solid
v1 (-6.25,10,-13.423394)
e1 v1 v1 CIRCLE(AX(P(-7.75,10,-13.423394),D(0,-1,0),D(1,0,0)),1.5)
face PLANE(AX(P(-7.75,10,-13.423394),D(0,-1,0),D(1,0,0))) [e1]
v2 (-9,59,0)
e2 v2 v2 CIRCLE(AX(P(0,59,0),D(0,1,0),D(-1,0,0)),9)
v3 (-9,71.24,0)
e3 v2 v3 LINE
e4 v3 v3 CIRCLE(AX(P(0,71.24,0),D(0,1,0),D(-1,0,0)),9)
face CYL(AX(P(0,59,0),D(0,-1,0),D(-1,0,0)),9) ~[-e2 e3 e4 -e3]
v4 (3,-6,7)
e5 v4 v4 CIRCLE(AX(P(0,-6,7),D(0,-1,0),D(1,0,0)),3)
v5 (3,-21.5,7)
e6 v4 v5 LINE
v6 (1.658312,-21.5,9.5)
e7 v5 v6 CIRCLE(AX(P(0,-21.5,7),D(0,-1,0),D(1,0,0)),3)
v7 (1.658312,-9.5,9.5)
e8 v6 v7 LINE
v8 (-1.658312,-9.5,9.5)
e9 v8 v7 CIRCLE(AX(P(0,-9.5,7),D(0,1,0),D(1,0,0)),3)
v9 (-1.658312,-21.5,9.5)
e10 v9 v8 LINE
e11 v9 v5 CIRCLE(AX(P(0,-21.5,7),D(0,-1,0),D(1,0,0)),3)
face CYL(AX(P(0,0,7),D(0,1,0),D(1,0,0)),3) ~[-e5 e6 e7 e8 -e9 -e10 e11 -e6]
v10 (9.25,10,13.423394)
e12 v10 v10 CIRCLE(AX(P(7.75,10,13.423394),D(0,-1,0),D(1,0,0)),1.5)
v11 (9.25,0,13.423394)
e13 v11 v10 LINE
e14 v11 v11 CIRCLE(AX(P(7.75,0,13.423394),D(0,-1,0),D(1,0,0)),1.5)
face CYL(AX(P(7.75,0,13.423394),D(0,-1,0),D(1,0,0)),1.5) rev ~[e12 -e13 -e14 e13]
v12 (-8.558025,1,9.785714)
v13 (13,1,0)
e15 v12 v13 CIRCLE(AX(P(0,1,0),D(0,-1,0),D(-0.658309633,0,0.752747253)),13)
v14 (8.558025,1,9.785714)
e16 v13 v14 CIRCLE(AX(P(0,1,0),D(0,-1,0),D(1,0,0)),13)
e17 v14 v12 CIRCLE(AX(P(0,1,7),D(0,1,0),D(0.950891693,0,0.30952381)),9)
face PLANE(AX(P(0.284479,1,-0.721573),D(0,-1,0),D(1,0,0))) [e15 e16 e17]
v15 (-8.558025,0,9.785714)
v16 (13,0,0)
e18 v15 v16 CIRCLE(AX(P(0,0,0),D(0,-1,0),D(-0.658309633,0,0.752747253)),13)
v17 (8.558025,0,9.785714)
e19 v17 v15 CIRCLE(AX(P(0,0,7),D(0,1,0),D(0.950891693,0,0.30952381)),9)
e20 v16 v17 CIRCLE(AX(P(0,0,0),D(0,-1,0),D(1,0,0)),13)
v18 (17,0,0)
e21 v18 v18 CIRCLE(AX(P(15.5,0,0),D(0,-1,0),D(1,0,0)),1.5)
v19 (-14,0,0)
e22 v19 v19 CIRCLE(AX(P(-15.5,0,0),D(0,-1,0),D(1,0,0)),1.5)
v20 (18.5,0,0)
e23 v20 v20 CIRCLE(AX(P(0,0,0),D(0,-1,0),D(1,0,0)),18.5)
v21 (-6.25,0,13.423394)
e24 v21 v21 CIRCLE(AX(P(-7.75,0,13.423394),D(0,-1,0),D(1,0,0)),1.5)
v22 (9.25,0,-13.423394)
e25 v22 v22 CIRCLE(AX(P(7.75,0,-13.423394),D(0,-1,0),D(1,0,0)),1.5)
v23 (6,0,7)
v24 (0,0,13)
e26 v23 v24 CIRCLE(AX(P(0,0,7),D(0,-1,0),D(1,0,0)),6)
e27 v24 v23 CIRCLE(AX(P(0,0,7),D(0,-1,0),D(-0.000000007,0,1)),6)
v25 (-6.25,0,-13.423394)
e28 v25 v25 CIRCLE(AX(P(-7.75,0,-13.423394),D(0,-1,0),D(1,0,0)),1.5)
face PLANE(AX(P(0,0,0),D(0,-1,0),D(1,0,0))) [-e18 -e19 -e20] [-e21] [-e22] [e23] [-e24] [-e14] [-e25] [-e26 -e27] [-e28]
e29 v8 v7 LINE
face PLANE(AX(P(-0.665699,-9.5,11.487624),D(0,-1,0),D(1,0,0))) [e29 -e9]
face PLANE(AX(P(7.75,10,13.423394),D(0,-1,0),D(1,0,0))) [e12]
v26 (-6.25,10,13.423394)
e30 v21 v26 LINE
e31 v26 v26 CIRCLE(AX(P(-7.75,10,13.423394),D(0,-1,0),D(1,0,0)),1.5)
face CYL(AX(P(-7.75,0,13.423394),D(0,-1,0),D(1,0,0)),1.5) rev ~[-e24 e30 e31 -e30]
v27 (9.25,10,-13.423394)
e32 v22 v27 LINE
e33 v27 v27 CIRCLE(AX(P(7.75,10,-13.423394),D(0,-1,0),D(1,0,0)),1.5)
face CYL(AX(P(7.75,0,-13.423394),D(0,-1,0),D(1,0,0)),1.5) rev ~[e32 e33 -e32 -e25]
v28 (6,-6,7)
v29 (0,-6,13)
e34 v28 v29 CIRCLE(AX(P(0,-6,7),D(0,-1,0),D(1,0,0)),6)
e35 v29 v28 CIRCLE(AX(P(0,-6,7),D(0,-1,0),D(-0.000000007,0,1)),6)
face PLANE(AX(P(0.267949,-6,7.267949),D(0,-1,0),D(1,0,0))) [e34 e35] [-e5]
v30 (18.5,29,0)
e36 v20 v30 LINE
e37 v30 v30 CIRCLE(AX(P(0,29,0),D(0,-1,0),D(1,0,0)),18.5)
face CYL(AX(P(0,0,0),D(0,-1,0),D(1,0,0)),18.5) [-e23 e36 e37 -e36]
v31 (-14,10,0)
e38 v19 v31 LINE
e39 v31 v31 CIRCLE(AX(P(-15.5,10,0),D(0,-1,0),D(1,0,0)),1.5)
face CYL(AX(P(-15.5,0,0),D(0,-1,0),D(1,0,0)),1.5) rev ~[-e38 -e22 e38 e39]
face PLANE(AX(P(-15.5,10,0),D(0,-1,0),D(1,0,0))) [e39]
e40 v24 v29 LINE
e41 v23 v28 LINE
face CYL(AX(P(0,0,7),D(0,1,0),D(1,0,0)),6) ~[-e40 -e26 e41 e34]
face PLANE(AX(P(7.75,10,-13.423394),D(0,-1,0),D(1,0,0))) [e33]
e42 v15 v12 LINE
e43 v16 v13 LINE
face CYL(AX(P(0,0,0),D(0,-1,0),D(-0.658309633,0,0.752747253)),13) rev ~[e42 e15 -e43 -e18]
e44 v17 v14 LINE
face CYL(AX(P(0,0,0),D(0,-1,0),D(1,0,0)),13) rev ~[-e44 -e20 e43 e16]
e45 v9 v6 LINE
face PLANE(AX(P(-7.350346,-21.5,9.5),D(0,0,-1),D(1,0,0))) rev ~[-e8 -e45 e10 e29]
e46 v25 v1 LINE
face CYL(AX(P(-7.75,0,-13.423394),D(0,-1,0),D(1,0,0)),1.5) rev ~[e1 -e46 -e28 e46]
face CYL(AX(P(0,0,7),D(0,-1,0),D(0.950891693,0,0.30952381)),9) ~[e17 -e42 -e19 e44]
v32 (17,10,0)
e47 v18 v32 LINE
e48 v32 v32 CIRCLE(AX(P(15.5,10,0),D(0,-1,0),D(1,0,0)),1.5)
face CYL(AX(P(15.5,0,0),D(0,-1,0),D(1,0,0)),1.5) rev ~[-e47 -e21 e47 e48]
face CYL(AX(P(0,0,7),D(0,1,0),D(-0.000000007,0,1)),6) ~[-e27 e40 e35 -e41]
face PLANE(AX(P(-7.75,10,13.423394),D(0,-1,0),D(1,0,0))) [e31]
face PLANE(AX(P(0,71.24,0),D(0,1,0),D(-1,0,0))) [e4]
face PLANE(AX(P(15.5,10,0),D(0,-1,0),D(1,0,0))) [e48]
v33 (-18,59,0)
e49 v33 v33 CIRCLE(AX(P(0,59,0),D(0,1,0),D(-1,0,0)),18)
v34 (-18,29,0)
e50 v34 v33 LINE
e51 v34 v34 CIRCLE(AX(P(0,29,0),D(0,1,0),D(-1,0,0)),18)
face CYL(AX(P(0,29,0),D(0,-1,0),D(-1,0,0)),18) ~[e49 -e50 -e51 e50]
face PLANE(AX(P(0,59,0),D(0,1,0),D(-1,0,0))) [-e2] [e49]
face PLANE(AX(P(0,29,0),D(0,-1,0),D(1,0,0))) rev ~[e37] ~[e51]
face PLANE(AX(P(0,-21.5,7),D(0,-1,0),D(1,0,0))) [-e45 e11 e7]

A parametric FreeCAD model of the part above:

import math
import FreeCAD as App
import Part
import Sketcher
Q = App.Units.Quantity


def add_polygon(sketch, points):
    """Adds a closed chain of lines whose ends are joined by coincident constraints."""
    first, n = sketch.GeometryCount, len(points)
    for a, b in zip(points, points[1:] + points[:1]):
        sketch.addGeometry(Part.LineSegment(App.Vector(*a, 0), App.Vector(*b, 0)), False)
    for i in range(n):
        sketch.addConstraint(Sketcher.Constraint("Coincident", first + i, 2, first + (i + 1) % n, 1))

doc = App.newDocument("Part")
body = doc.addObject("PartDesign::Body", "Body")

sketch1 = body.newObject("Sketcher::SketchObject", "Sketch")
sketch1.AttachmentSupport = (doc.getObject("XZ_Plane"), [""])
sketch1.MapMode = "FlatFace"
sketch1.addGeometry(Part.Circle(App.Vector(0, 0, 0), App.Vector(0, 0, 1), 18.5), False)
sketch1.addConstraint([
    Sketcher.Constraint("Coincident", 0, 3, -1, 1),
    Sketcher.Constraint("Diameter", 0, Q("37 mm")),
])
pad1 = body.newObject("PartDesign::Pad", "Pad")
pad1.Profile = sketch1
pad1.Length = 29
pad1.Reversed = True

sketch2 = body.newObject("Sketcher::SketchObject", "Sketch001")
sketch2.AttachmentSupport = (doc.getObject("XZ_Plane"), [""])
sketch2.MapMode = "FlatFace"
sketch2.AttachmentOffset = App.Placement(App.Vector(0, 0, -29), App.Rotation())
sketch2.addGeometry(Part.Circle(App.Vector(0, 0, 0), App.Vector(0, 0, 1), 18), False)
sketch2.addConstraint([
    Sketcher.Constraint("Coincident", 0, 3, -1, 1),
    Sketcher.Constraint("Diameter", 0, Q("36 mm")),
])
pad2 = body.newObject("PartDesign::Pad", "Pad001")
pad2.Profile = sketch2
pad2.Length = 30
pad2.Reversed = True

sketch3 = body.newObject("Sketcher::SketchObject", "Sketch002")
sketch3.AttachmentSupport = (doc.getObject("XZ_Plane"), [""])
sketch3.MapMode = "FlatFace"
sketch3.AttachmentOffset = App.Placement(App.Vector(0, 0, -59), App.Rotation())
sketch3.addGeometry(Part.Circle(App.Vector(0, 0, 0), App.Vector(0, 0, 1), 9), False)
sketch3.addConstraint([
    Sketcher.Constraint("Coincident", 0, 3, -1, 1),
    Sketcher.Constraint("Diameter", 0, Q("18 mm")),
])
pad3 = body.newObject("PartDesign::Pad", "Pad002")
pad3.Profile = sketch3
pad3.Length = 12.24
pad3.Reversed = True

sketch4 = body.newObject("Sketcher::SketchObject", "Sketch003")
sketch4.AttachmentSupport = (doc.getObject("XZ_Plane"), [""])
sketch4.MapMode = "FlatFace"
sketch4.addGeometry([
    Part.ArcOfCircle(Part.Circle(App.Vector(0, 7, 0), App.Vector(0, 0, 1), 6), math.radians(90), math.radians(360)),
    Part.ArcOfCircle(Part.Circle(App.Vector(0, 7, 0), App.Vector(0, 0, 1), 6), math.radians(0), math.radians(90)),
    Part.Circle(App.Vector(0, 7, 0), App.Vector(0, 0, 1), 3),
], False)
sketch4.addConstraint([
    Sketcher.Constraint("Tangent", 0, 1, 1, 2),
    Sketcher.Constraint("Coincident", 1, 1, 0, 2),
    Sketcher.Constraint("Coincident", 2, 3, 0, 3),
    Sketcher.Constraint("PointOnObject", 0, 3, -2),
    Sketcher.Constraint("PointOnObject", 0, 1, -2),
    Sketcher.Constraint("Horizontal", 2, 3, 1, 1),
    Sketcher.Constraint("Diameter", 2, Q("6 mm")),
    Sketcher.Constraint("Radius", 0, Q("6 mm")),
    Sketcher.Constraint("DistanceY", -1, 1, 0, 3, Q("7 mm")),
])
pad4 = body.newObject("PartDesign::Pad", "Pad003")
pad4.Profile = sketch4
pad4.Length = 6

sketch5 = body.newObject("Sketcher::SketchObject", "Sketch004")
sketch5.AttachmentSupport = (doc.getObject("XZ_Plane"), [""])
sketch5.MapMode = "FlatFace"
sketch5.addGeometry(Part.Circle(App.Vector(0, 7, 0), App.Vector(0, 0, 1), 3), False)
sketch5.addConstraint([
    Sketcher.Constraint("PointOnObject", 0, 3, -2),
    Sketcher.Constraint("Diameter", 0, Q("6 mm")),
    Sketcher.Constraint("DistanceY", -1, 1, 0, 3, Q("7 mm")),
])
pad5 = body.newObject("PartDesign::Pad", "Pad004")
pad5.Profile = sketch5
pad5.Length = 21.5

sketch6 = body.newObject("Sketcher::SketchObject", "Sketch005")
sketch6.AttachmentSupport = (doc.getObject("XZ_Plane"), [""])
sketch6.MapMode = "FlatFace"
sketch6.addGeometry([
    Part.Circle(App.Vector(-7.75, 13.423394, 0), App.Vector(0, 0, 1), 1.5),
    Part.Circle(App.Vector(7.75, 13.423394, 0), App.Vector(0, 0, 1), 1.5),
    Part.Circle(App.Vector(15.5, 0, 0), App.Vector(0, 0, 1), 1.5),
    Part.Circle(App.Vector(-7.75, -13.423394, 0), App.Vector(0, 0, 1), 1.5),
    Part.Circle(App.Vector(-15.5, 0, 0), App.Vector(0, 0, 1), 1.5),
    Part.Circle(App.Vector(7.75, -13.423394, 0), App.Vector(0, 0, 1), 1.5),
], False)
sketch6.addConstraint([
    Sketcher.Constraint("Equal", 0, 1),
    Sketcher.Constraint("Equal", 1, 2),
    Sketcher.Constraint("Equal", 2, 3),
    Sketcher.Constraint("Equal", 3, 4),
    Sketcher.Constraint("Equal", 4, 5),
    Sketcher.Constraint("Symmetric", 1, 3, 3, 3, -1, 1),
    Sketcher.Constraint("Symmetric", 2, 3, 4, 3, -1, 1),
    Sketcher.Constraint("Symmetric", 0, 3, 5, 3, -1, 1),
    Sketcher.Constraint("Symmetric", 0, 3, 1, 3, -2),
    Sketcher.Constraint("PointOnObject", 2, 3, -1),
    Sketcher.Constraint("Diameter", 0, Q("3 mm")),
    Sketcher.Constraint("DistanceX", 4, 3, 2, 3, Q("31 mm")),
    Sketcher.Constraint("DistanceX", 0, 3, 1, 3, Q("15.5 mm")),
    Sketcher.Constraint("DistanceY", -1, 1, 0, 3, Q("13.423394 mm")),
])
pocket1 = body.newObject("PartDesign::Pocket", "Pocket")
pocket1.Profile = sketch6
pocket1.Length = 10

sketch7 = body.newObject("Sketcher::SketchObject", "Sketch006")
sketch7.AttachmentSupport = (doc.getObject("XZ_Plane"), [""])
sketch7.MapMode = "FlatFace"
sketch7.AttachmentOffset = App.Placement(App.Vector(0, 0, 21.5), App.Rotation())
add_polygon(sketch7, [(6.012205, 9.5), (6.012205, 13.435763), (-7.350346, 13.435763), (-7.350346, 9.5)])
sketch7.addConstraint([
    Sketcher.Constraint("Vertical", 0),
    Sketcher.Constraint("Horizontal", 1),
    Sketcher.Constraint("Vertical", 2),
    Sketcher.Constraint("Horizontal", 3),
    Sketcher.Constraint("DistanceY", -1, 1, 2, 2, Q("9.5 mm")),
    Sketcher.Constraint("DistanceX", 1, 2, 1, 1, Q("13.362551 mm")),
    Sketcher.Constraint("DistanceY", 0, 1, 0, 2, Q("3.935763 mm")),
    Sketcher.Constraint("DistanceX", -1, 1, 0, 2, Q("6.012205 mm")),
])
pocket2 = body.newObject("PartDesign::Pocket", "Pocket001")
pocket2.Profile = sketch7
pocket2.Length = 12

sketch8 = body.newObject("Sketcher::SketchObject", "Sketch007")
sketch8.AttachmentSupport = (doc.getObject("XZ_Plane"), [""])
sketch8.MapMode = "FlatFace"
sketch8.addGeometry([
    Part.ArcOfCircle(Part.Circle(App.Vector(0, 0, 0), App.Vector(0, 0, 1), 13), math.radians(0), math.radians(48.828917)),
    Part.ArcOfCircle(Part.Circle(App.Vector(0, 7, 0), App.Vector(0, 0, 1), 9), math.radians(161.969465), math.radians(378.030535)),
    Part.ArcOfCircle(Part.Circle(App.Vector(0, 0, 0), App.Vector(0, 0, 1), 13), math.radians(131.171083), math.radians(360)),
], False)
sketch8.addConstraint([
    Sketcher.Constraint("Coincident", 0, 2, 1, 2),
    Sketcher.Constraint("Coincident", 1, 1, 2, 1),
    Sketcher.Constraint("Tangent", 2, 2, 0, 1),
    Sketcher.Constraint("Coincident", 0, 3, -1, 1),
    Sketcher.Constraint("Equal", 0, 2),
    Sketcher.Constraint("PointOnObject", 1, 3, -2),
    Sketcher.Constraint("PointOnObject", 2, 2, -1),
    Sketcher.Constraint("Radius", 0, Q("13 mm")),
    Sketcher.Constraint("Radius", 1, Q("9 mm")),
    Sketcher.Constraint("DistanceY", -1, 1, 1, 3, Q("7 mm")),
])
pocket3 = body.newObject("PartDesign::Pocket", "Pocket002")
pocket3.Profile = sketch8
pocket3.Length = 1

doc.recompute()
